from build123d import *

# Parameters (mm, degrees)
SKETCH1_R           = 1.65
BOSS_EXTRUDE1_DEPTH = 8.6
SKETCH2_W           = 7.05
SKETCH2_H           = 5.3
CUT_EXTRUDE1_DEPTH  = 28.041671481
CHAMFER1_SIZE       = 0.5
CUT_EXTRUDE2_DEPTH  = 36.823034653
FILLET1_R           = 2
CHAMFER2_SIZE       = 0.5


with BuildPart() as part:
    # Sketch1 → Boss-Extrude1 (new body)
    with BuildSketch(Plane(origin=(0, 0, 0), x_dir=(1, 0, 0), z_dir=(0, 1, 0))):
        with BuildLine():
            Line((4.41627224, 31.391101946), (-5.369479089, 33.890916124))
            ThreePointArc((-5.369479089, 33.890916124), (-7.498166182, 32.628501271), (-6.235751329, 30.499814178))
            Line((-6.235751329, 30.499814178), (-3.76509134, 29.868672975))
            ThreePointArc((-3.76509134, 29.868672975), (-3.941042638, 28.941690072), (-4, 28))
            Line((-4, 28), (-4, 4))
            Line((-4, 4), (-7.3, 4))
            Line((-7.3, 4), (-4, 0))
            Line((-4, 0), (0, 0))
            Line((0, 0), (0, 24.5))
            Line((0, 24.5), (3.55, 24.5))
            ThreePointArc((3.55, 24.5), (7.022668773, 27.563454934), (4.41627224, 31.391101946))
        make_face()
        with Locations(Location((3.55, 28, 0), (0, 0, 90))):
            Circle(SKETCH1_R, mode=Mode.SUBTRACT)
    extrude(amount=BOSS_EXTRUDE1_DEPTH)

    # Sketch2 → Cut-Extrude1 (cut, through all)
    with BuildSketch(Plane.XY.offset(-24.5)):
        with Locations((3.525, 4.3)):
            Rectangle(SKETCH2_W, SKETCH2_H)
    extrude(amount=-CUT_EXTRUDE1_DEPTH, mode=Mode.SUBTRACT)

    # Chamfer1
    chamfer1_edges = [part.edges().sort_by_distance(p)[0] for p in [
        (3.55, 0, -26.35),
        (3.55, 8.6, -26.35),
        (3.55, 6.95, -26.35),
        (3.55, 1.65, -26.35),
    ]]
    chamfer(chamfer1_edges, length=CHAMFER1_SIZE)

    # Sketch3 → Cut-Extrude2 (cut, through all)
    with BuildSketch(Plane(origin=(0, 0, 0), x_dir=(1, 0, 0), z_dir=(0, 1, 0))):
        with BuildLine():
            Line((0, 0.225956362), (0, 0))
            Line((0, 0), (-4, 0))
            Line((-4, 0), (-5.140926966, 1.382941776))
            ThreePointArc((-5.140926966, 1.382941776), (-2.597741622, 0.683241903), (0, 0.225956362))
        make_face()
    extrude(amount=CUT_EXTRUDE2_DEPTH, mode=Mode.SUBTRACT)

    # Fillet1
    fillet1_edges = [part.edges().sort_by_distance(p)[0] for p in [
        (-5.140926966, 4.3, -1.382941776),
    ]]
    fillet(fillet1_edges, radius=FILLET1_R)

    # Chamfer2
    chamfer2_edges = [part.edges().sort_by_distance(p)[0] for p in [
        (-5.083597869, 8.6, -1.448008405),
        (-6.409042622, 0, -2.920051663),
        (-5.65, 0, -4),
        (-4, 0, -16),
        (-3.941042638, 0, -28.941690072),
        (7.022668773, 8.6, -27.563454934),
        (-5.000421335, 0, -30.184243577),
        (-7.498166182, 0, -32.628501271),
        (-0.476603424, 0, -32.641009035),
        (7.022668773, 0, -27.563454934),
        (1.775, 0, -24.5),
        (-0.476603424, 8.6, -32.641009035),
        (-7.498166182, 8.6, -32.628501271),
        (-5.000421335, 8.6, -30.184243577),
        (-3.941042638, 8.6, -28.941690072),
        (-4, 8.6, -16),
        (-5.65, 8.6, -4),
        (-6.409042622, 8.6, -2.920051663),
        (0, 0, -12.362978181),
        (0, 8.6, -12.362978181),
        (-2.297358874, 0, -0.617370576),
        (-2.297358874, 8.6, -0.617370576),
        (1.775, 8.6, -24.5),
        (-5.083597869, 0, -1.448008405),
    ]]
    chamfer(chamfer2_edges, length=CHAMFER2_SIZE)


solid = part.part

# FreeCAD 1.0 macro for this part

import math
import FreeCAD as App
import Part
import Sketcher

V = App.Vector
Q = App.Units.Quantity


def edges_at(feature, points):
    """Names of the edges that pass closest to the given points."""
    edges = feature.Shape.Edges
    near = lambda p: min(range(len(edges)), key=lambda i: edges[i].distToShape(Part.Vertex(*p))[0])
    return sorted({f"Edge{near(p) + 1}" for p in points})

doc = App.newDocument("Part")
body = doc.addObject("PartDesign::Body", "Body")

# Sketch on XZ plane
sketch1 = body.newObject("Sketcher::SketchObject", "Sketch")
sketch1.AttachmentSupport = (doc.getObject("XZ_Plane"), [""])
sketch1.MapMode = "FlatFace"
sketch1.addGeometry(Part.LineSegment(V(4.416272, -31.391102, 0), V(-5.369479, -33.890916, 0)), False)
sketch1.addGeometry(Part.ArcOfCircle(Part.Circle(V(-5.802615, -32.195365, 0), V(0, 0, 1), 1.75), math.radians(104.33), math.radians(284.33)), False)
sketch1.addGeometry(Part.LineSegment(V(-6.235751, -30.499814, 0), V(-3.765091, -29.868673, 0)), False)
sketch1.addGeometry(Part.ArcOfCircle(Part.Circle(V(3.55, -28, 0), V(0, 0, 1), 7.55), math.radians(-180), math.radians(-165.67)), False)
sketch1.addGeometry(Part.LineSegment(V(-4, -28, 0), V(-4, -4, 0)), False)
sketch1.addGeometry(Part.LineSegment(V(-4, -4, 0), V(-7.3, -4, 0)), False)
sketch1.addGeometry(Part.LineSegment(V(-7.3, -4, 0), V(-4, 0, 0)), False)
sketch1.addGeometry(Part.LineSegment(V(-4, 0, 0), V(0, 0, 0)), False)
sketch1.addGeometry(Part.LineSegment(V(0, 0, 0), V(0, -24.5, 0)), False)
sketch1.addGeometry(Part.LineSegment(V(0, -24.5, 0), V(3.55, -24.5, 0)), False)
sketch1.addGeometry(Part.ArcOfCircle(Part.Circle(V(3.55, -28, 0), V(0, 0, 1), 3.5), math.radians(-75.67), math.radians(90)), False)
sketch1.addGeometry(Part.Circle(V(3.55, -28, 0), V(0, 0, 1), 1.65), False)
sketch1.addConstraint(Sketcher.Constraint("Tangent", 0, 2, 1, 2))
sketch1.addConstraint(Sketcher.Constraint("Tangent", 1, 1, 2, 1))
sketch1.addConstraint(Sketcher.Constraint("Coincident", 2, 2, 3, 2))
sketch1.addConstraint(Sketcher.Constraint("Tangent", 3, 1, 4, 1))
sketch1.addConstraint(Sketcher.Constraint("Coincident", 4, 2, 5, 1))
sketch1.addConstraint(Sketcher.Constraint("Coincident", 5, 2, 6, 1))
sketch1.addConstraint(Sketcher.Constraint("Coincident", 6, 2, 7, 1))
sketch1.addConstraint(Sketcher.Constraint("Coincident", 7, 2, 8, 1))
sketch1.addConstraint(Sketcher.Constraint("Coincident", 8, 2, 9, 1))
sketch1.addConstraint(Sketcher.Constraint("Tangent", 9, 2, 10, 2))
sketch1.addConstraint(Sketcher.Constraint("Tangent", 10, 1, 0, 1))
sketch1.addConstraint(Sketcher.Constraint("Vertical", 4))
sketch1.addConstraint(Sketcher.Constraint("Horizontal", 5))
sketch1.addConstraint(Sketcher.Constraint("Horizontal", 7))
sketch1.addConstraint(Sketcher.Constraint("Vertical", 8))
sketch1.addConstraint(Sketcher.Constraint("Horizontal", 9))
sketch1.addConstraint(Sketcher.Constraint("Coincident", 7, 2, -1, 1))
sketch1.addConstraint(Sketcher.Constraint("Coincident", 10, 3, 3, 3))
sketch1.addConstraint(Sketcher.Constraint("Coincident", 11, 3, 3, 3))
sketch1.addConstraint(Sketcher.Constraint("Parallel", 0, 2))
sketch1.addConstraint(Sketcher.Constraint("Vertical", 4, 2, 6, 2))
sketch1.addConstraint(Sketcher.Constraint("Diameter", 11, 3.3))
sketch1.addConstraint(Sketcher.Constraint("Radius", 10, 3.5))
sketch1.addConstraint(Sketcher.Constraint("DistanceX", 7, 1, 7, 2, 4.0))
sketch1.addConstraint(Sketcher.Constraint("DistanceY", 4, 1, 4, 2, 24.0))
sketch1.addConstraint(Sketcher.Constraint("Radius", 1, 1.75))
sketch1.addConstraint(Sketcher.Constraint("Radius", 3, 7.55))
sketch1.addConstraint(Sketcher.Constraint("DistanceX", 5, 2, 5, 1, 3.3))
sketch1.addConstraint(Sketcher.Constraint("DistanceY", 8, 2, 8, 1, 24.5))
sketch1.addConstraint(Sketcher.Constraint("Distance", 0, 10.1))
sketch1.addConstraint(Sketcher.Constraint("Angle", 0, Q("-165.67 deg")))
pad1 = body.newObject("PartDesign::Pad", "Pad")
pad1.Profile = sketch1
pad1.Length = 8.6
pad1.Reversed = True

# Sketch on XY plane
sketch2 = body.newObject("Sketcher::SketchObject", "Sketch001")
sketch2.AttachmentSupport = (doc.getObject("XY_Plane"), [""])
sketch2.MapMode = "FlatFace"
sketch2.AttachmentOffset = App.Placement(V(0, 0, -24.5), App.Rotation())
sketch2.addGeometry(Part.LineSegment(V(0, 6.95, 0), V(0, 1.65, 0)), False)
sketch2.addGeometry(Part.LineSegment(V(0, 1.65, 0), V(7.05, 1.65, 0)), False)
sketch2.addGeometry(Part.LineSegment(V(7.05, 1.65, 0), V(7.05, 6.95, 0)), False)
sketch2.addGeometry(Part.LineSegment(V(7.05, 6.95, 0), V(0, 6.95, 0)), False)
sketch2.addConstraint(Sketcher.Constraint("Coincident", 0, 2, 1, 1))
sketch2.addConstraint(Sketcher.Constraint("Coincident", 1, 2, 2, 1))
sketch2.addConstraint(Sketcher.Constraint("Coincident", 2, 2, 3, 1))
sketch2.addConstraint(Sketcher.Constraint("Coincident", 3, 2, 0, 1))
sketch2.addConstraint(Sketcher.Constraint("Vertical", 0))
sketch2.addConstraint(Sketcher.Constraint("Horizontal", 1))
sketch2.addConstraint(Sketcher.Constraint("Vertical", 2))
sketch2.addConstraint(Sketcher.Constraint("Horizontal", 3))
sketch2.addConstraint(Sketcher.Constraint("PointOnObject", 0, 2, -2))
sketch2.addConstraint(Sketcher.Constraint("DistanceY", 0, 2, 0, 1, 5.3))
sketch2.addConstraint(Sketcher.Constraint("DistanceX", 1, 1, 1, 2, 7.05))
sketch2.addConstraint(Sketcher.Constraint("DistanceY", -1, 1, 0, 2, 1.65))
pocket1 = body.newObject("PartDesign::Pocket", "Pocket")
pocket1.Profile = sketch2
pocket1.Type = "ThroughAll"
doc.recompute()

chamfer = body.newObject("PartDesign::Chamfer", "Chamfer")
chamfer.Base = (pocket1, edges_at(pocket1, [
    (3.55, 0, -26.35),
    (3.55, 8.6, -26.35),
    (3.55, 6.95, -26.35),
    (3.55, 1.65, -26.35),
]))
chamfer.Size = 0.5

# Sketch on XZ plane
sketch3 = body.newObject("Sketcher::SketchObject", "Sketch002")
sketch3.AttachmentSupport = (doc.getObject("XZ_Plane"), [""])
sketch3.MapMode = "FlatFace"
sketch3.addGeometry(Part.LineSegment(V(0, 0, 0), V(0, -0.225956, 0)), False)
sketch3.addGeometry(Part.ArcOfCircle(Part.Circle(V(3.55, -28, 0), V(0, 0, 1), 28), math.radians(97.28389), math.radians(108.08275)), False)
sketch3.addGeometry(Part.LineSegment(V(-5.140927, -1.382942, 0), V(-4, 0, 0)), False)
sketch3.addGeometry(Part.LineSegment(V(-4, 0, 0), V(0, 0, 0)), False)
sketch3.addConstraint(Sketcher.Constraint("Coincident", 0, 2, 1, 1))
sketch3.addConstraint(Sketcher.Constraint("Coincident", 1, 2, 2, 1))
sketch3.addConstraint(Sketcher.Constraint("Coincident", 2, 2, 3, 1))
sketch3.addConstraint(Sketcher.Constraint("Coincident", 3, 2, 0, 1))
sketch3.addConstraint(Sketcher.Constraint("Vertical", 0))
sketch3.addConstraint(Sketcher.Constraint("Horizontal", 3))
sketch3.addConstraint(Sketcher.Constraint("Coincident", 3, 2, -1, 1))
sketch3.addConstraint(Sketcher.Constraint("Radius", 1, 28.0))
sketch3.addConstraint(Sketcher.Constraint("DistanceX", 3, 1, 3, 2, 4.0))
sketch3.addConstraint(Sketcher.Constraint("DistanceY", 1, 3, -1, 1, 28.0))
sketch3.addConstraint(Sketcher.Constraint("DistanceX", -1, 1, 1, 3, 3.55))
sketch3.addConstraint(Sketcher.Constraint("Distance", 2, 1.792831))
pocket2 = body.newObject("PartDesign::Pocket", "Pocket001")
pocket2.Profile = sketch3
pocket2.Type = "ThroughAll"
doc.recompute()

fillet = body.newObject("PartDesign::Fillet", "Fillet")
fillet.Base = (pocket2, edges_at(pocket2, [(-5.141, 4.3, -1.383)]))
fillet.Radius = 2
doc.recompute()

chamfer2 = body.newObject("PartDesign::Chamfer", "Chamfer001")
chamfer2.Base = (fillet, edges_at(fillet, [
    (-5.084, 8.6, -1.448),
    (-6.409, 0, -2.92),
    (-5.65, 0, -4),
    (-4, 0, -16),
    (-3.941, 0, -28.942),
    (7.023, 8.6, -27.563),
    (-5, 0, -30.184),
    (-7.498, 0, -32.629),
    (-0.477, 0, -32.641),
    (7.023, 0, -27.563),
    (1.775, 0, -24.5),
    (-0.477, 8.6, -32.641),
    (-7.498, 8.6, -32.629),
    (-5, 8.6, -30.184),
    (-3.941, 8.6, -28.942),
    (-4, 8.6, -16),
    (-5.65, 8.6, -4),
    (-6.409, 8.6, -2.92),
    (0, 0, -12.363),
    (0, 8.6, -12.363),
    (-2.297, 0, -0.617),
    (-2.297, 8.6, -0.617),
    (1.775, 8.6, -24.5),
    (-5.084, 0, -1.448),
]))
chamfer2.Size = 0.5

doc.recompute()
